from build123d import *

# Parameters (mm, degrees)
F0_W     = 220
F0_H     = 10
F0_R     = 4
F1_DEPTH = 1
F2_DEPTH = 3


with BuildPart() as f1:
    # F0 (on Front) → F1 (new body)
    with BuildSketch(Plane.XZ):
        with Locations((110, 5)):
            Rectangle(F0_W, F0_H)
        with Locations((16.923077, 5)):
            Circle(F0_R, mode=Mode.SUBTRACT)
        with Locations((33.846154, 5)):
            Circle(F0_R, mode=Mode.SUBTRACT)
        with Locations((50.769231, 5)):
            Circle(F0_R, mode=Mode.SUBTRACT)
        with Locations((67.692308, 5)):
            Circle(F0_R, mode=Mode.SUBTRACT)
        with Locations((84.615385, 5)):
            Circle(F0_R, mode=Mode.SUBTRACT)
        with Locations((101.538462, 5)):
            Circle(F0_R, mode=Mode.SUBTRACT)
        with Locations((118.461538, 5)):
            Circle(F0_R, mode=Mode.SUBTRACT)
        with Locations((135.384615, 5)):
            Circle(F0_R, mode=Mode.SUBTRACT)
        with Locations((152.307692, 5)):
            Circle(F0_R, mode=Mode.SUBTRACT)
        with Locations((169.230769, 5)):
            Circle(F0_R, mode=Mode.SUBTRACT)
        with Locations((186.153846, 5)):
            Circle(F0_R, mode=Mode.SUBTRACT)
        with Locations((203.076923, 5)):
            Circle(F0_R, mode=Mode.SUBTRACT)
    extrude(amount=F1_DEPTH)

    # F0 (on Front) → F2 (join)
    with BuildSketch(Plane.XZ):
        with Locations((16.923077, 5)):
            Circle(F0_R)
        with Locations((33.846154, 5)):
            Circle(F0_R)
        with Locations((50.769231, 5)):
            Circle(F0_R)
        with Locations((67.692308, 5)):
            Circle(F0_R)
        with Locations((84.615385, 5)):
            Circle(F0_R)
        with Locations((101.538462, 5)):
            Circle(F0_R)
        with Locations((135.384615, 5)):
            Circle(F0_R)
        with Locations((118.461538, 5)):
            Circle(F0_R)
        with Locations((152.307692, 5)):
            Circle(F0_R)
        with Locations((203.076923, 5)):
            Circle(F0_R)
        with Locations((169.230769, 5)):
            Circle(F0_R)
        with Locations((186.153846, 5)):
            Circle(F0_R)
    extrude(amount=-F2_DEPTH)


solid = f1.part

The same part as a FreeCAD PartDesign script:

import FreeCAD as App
import Part
import Sketcher
Q = App.Units.Quantity


def add_polygon(sketch, points):
    """Adds a closed chain of lines whose ends are joined by coincident constraints."""
    first, n = sketch.GeometryCount, len(points)
    for a, b in zip(points, points[1:] + points[:1]):
        sketch.addGeometry(Part.LineSegment(App.Vector(*a, 0), App.Vector(*b, 0)), False)
    for i in range(n):
        sketch.addConstraint(Sketcher.Constraint("Coincident", first + i, 2, first + (i + 1) % n, 1))

doc = App.newDocument("Part")
body = doc.addObject("PartDesign::Body", "Body")
body.AllowCompound = True

sketch1 = doc.addObject("Sketcher::SketchObject", "Sketch")
body.addObject(sketch1)
sketch1.AttachmentSupport = (doc.XZ_Plane, [""])
sketch1.MapMode = "FlatFace"
add_polygon(sketch1, [(0, 10), (0, 0), (220, 0), (220, 10)])
sketch1.addGeometry(Part.Circle(App.Vector(16.9, 5, 0), App.Vector(0, 0, 1), 4), False)
sketch1.addGeometry(Part.Circle(App.Vector(33.8, 5, 0), App.Vector(0, 0, 1), 4), False)
sketch1.addGeometry(Part.Circle(App.Vector(50.8, 5, 0), App.Vector(0, 0, 1), 4), False)
sketch1.addGeometry(Part.Circle(App.Vector(67.7, 5, 0), App.Vector(0, 0, 1), 4), False)
sketch1.addGeometry(Part.Circle(App.Vector(84.6, 5, 0), App.Vector(0, 0, 1), 4), False)
sketch1.addGeometry(Part.Circle(App.Vector(101.5, 5, 0), App.Vector(0, 0, 1), 4), False)
sketch1.addGeometry(Part.Circle(App.Vector(118.5, 5, 0), App.Vector(0, 0, 1), 4), False)
sketch1.addGeometry(Part.Circle(App.Vector(135.4, 5, 0), App.Vector(0, 0, 1), 4), False)
sketch1.addGeometry(Part.Circle(App.Vector(152.3, 5, 0), App.Vector(0, 0, 1), 4), False)
sketch1.addGeometry(Part.Circle(App.Vector(169.2, 5, 0), App.Vector(0, 0, 1), 4), False)
sketch1.addGeometry(Part.Circle(App.Vector(186.2, 5, 0), App.Vector(0, 0, 1), 4), False)
sketch1.addGeometry(Part.Circle(App.Vector(203.1, 5, 0), App.Vector(0, 0, 1), 4), False)
sketch1.addConstraint([
    Sketcher.Constraint("Vertical", 0),
    Sketcher.Constraint("Horizontal", 1),
    Sketcher.Constraint("Vertical", 2),
    Sketcher.Constraint("Horizontal", 3),
    Sketcher.Constraint("Coincident", 0, 2, -1, 1),
    Sketcher.Constraint("Equal", 4, 5),
    Sketcher.Constraint("Equal", 5, 6),
    Sketcher.Constraint("Equal", 6, 7),
    Sketcher.Constraint("Equal", 7, 8),
    Sketcher.Constraint("Equal", 8, 9),
    Sketcher.Constraint("Equal", 9, 10),
    Sketcher.Constraint("Equal", 10, 11),
    Sketcher.Constraint("Equal", 11, 12),
    Sketcher.Constraint("Equal", 12, 13),
    Sketcher.Constraint("Equal", 13, 14),
    Sketcher.Constraint("Equal", 14, 15),
    Sketcher.Constraint("Horizontal", 4, 3, 5, 3),
    Sketcher.Constraint("Horizontal", 5, 3, 6, 3),
    Sketcher.Constraint("Horizontal", 6, 3, 7, 3),
    Sketcher.Constraint("Horizontal", 7, 3, 8, 3),
    Sketcher.Constraint("Horizontal", 8, 3, 9, 3),
    Sketcher.Constraint("Horizontal", 9, 3, 10, 3),
    Sketcher.Constraint("Horizontal", 10, 3, 11, 3),
    Sketcher.Constraint("Horizontal", 11, 3, 12, 3),
    Sketcher.Constraint("Horizontal", 12, 3, 13, 3),
    Sketcher.Constraint("Horizontal", 13, 3, 14, 3),
    Sketcher.Constraint("Horizontal", 14, 3, 15, 3),
    Sketcher.Constraint("Diameter", 4, Q("8 mm")),
    Sketcher.Constraint("DistanceX", 1, 1, 1, 2, Q("220 mm")),
    Sketcher.Constraint("DistanceY", 0, 2, 0, 1, Q("10 mm")),
    Sketcher.Constraint("DistanceY", -1, 1, 4, 3, Q("5 mm")),
    Sketcher.Constraint("DistanceX", -1, 1, 6, 3, Q("50.769231 mm")),
    Sketcher.Constraint("DistanceX", -1, 1, 9, 3, Q("101.538462 mm")),
    Sketcher.Constraint("DistanceX", -1, 1, 10, 3, Q("118.461538 mm")),
    Sketcher.Constraint("DistanceX", -1, 1, 12, 3, Q("152.307692 mm")),
    Sketcher.Constraint("DistanceX", -1, 1, 13, 3, Q("169.230769 mm")),
    Sketcher.Constraint("DistanceX", 4, 3, 7, 3, Q("50.769231 mm")),
    Sketcher.Constraint("DistanceX", 5, 3, 8, 3, Q("50.769231 mm")),
    Sketcher.Constraint("DistanceX", 7, 3, 10, 3, Q("50.76923 mm")),
    Sketcher.Constraint("DistanceX", 8, 3, 11, 3, Q("50.76923 mm")),
    Sketcher.Constraint("DistanceX", 11, 3, 14, 3, Q("50.769231 mm")),
    Sketcher.Constraint("DistanceX", 12, 3, 15, 3, Q("50.769231 mm")),
    Sketcher.Constraint("DistanceX", -1, 1, 5, 3, Q("33.846154 mm")),
])
pad1 = doc.addObject("PartDesign::Pad", "Pad")
body.addObject(pad1)
pad1.Profile = sketch1
pad1.Length = 1

sketch2 = doc.addObject("Sketcher::SketchObject", "Sketch001")
body.addObject(sketch2)
sketch2.AttachmentSupport = (doc.XZ_Plane, [""])
sketch2.MapMode = "FlatFace"
sketch2.addGeometry([
    Part.Circle(App.Vector(16.9, 5, 0), App.Vector(0, 0, 1), 4),
    Part.Circle(App.Vector(33.8, 5, 0), App.Vector(0, 0, 1), 4),
    Part.Circle(App.Vector(50.8, 5, 0), App.Vector(0, 0, 1), 4),
    Part.Circle(App.Vector(67.7, 5, 0), App.Vector(0, 0, 1), 4),
    Part.Circle(App.Vector(84.6, 5, 0), App.Vector(0, 0, 1), 4),
    Part.Circle(App.Vector(101.5, 5, 0), App.Vector(0, 0, 1), 4),
    Part.Circle(App.Vector(135.4, 5, 0), App.Vector(0, 0, 1), 4),
    Part.Circle(App.Vector(118.5, 5, 0), App.Vector(0, 0, 1), 4),
    Part.Circle(App.Vector(152.3, 5, 0), App.Vector(0, 0, 1), 4),
    Part.Circle(App.Vector(203.1, 5, 0), App.Vector(0, 0, 1), 4),
    Part.Circle(App.Vector(169.2, 5, 0), App.Vector(0, 0, 1), 4),
    Part.Circle(App.Vector(186.2, 5, 0), App.Vector(0, 0, 1), 4),
], False)
sketch2.addConstraint([
    Sketcher.Constraint("Equal", 0, 1),
    Sketcher.Constraint("Equal", 1, 2),
    Sketcher.Constraint("Equal", 2, 3),
    Sketcher.Constraint("Equal", 3, 4),
    Sketcher.Constraint("Equal", 4, 5),
    Sketcher.Constraint("Equal", 5, 6),
    Sketcher.Constraint("Equal", 6, 7),
    Sketcher.Constraint("Equal", 7, 8),
    Sketcher.Constraint("Equal", 8, 9),
    Sketcher.Constraint("Equal", 9, 10),
    Sketcher.Constraint("Equal", 10, 11),
    Sketcher.Constraint("Horizontal", 0, 3, 1, 3),
    Sketcher.Constraint("Horizontal", 1, 3, 2, 3),
    Sketcher.Constraint("Horizontal", 2, 3, 3, 3),
    Sketcher.Constraint("Horizontal", 3, 3, 4, 3),
    Sketcher.Constraint("Horizontal", 4, 3, 5, 3),
    Sketcher.Constraint("Horizontal", 5, 3, 6, 3),
    Sketcher.Constraint("Horizontal", 6, 3, 7, 3),
    Sketcher.Constraint("Horizontal", 7, 3, 8, 3),
    Sketcher.Constraint("Horizontal", 8, 3, 9, 3),
    Sketcher.Constraint("Horizontal", 9, 3, 10, 3),
    Sketcher.Constraint("Horizontal", 10, 3, 11, 3),
    Sketcher.Constraint("Diameter", 0, Q("8 mm")),
    Sketcher.Constraint("DistanceY", -1, 1, 0, 3, Q("5 mm")),
    Sketcher.Constraint("DistanceX", -1, 1, 2, 3, Q("50.769231 mm")),
    Sketcher.Constraint("DistanceX", -1, 1, 5, 3, Q("101.538462 mm")),
    Sketcher.Constraint("DistanceX", -1, 1, 7, 3, Q("118.461538 mm")),
    Sketcher.Constraint("DistanceX", -1, 1, 8, 3, Q("152.307692 mm")),
    Sketcher.Constraint("DistanceX", -1, 1, 10, 3, Q("169.230769 mm")),
    Sketcher.Constraint("DistanceX", 0, 3, 3, 3, Q("50.769231 mm")),
    Sketcher.Constraint("DistanceX", 1, 3, 4, 3, Q("50.769231 mm")),
    Sketcher.Constraint("DistanceX", 4, 3, 6, 3, Q("50.76923 mm")),
    Sketcher.Constraint("DistanceX", 3, 3, 7, 3, Q("50.76923 mm")),
    Sketcher.Constraint("DistanceX", 8, 3, 9, 3, Q("50.769231 mm")),
    Sketcher.Constraint("DistanceX", 6, 3, 11, 3, Q("50.769231 mm")),
    Sketcher.Constraint("DistanceX", -1, 1, 1, 3, Q("33.846154 mm")),
])
pad2 = doc.addObject("PartDesign::Pad", "Pad001")
body.addObject(pad2)
pad2.Profile = sketch2
pad2.Length = 3
pad2.Reversed = True

doc.recompute()
